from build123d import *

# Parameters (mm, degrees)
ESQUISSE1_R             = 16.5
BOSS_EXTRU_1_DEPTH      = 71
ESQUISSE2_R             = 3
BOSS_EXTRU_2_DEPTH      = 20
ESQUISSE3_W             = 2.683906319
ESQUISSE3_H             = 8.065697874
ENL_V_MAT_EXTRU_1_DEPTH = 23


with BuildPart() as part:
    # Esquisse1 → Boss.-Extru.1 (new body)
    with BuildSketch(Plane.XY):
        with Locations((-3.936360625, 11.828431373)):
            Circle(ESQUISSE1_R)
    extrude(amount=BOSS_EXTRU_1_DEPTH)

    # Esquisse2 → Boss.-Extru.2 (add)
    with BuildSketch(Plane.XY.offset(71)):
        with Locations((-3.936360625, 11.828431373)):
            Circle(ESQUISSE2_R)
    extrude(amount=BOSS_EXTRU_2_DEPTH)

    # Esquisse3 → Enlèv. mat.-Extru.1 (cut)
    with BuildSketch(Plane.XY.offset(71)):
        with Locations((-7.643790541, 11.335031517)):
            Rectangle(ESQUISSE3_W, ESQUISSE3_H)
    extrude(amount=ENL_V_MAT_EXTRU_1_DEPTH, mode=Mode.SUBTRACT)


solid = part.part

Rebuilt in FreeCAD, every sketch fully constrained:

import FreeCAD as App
import Part
import Sketcher

doc = App.newDocument("Part")
body = doc.addObject("PartDesign::Body", "Body")

# Sketch on XY plane
sketch1 = body.newObject("Sketcher::SketchObject", "Sketch")
sketch1.AttachmentSupport = (doc.getObject("XY_Plane"), [""])
sketch1.MapMode = "FlatFace"
sketch1.addGeometry(Part.Circle(App.Vector(-4, 12, 0), App.Vector(0, 0, 1), 16), False)
sketch1.addConstraint([
    Sketcher.Constraint("Diameter", 0, 33.0),
    Sketcher.Constraint("DistanceX", 0, 3, -1, 1, 3.936361),
    Sketcher.Constraint("DistanceY", -1, 1, 0, 3, 11.828431),
])
pad1 = body.newObject("PartDesign::Pad", "Pad")
pad1.Profile = sketch1
pad1.Length = 71

# Sketch on XY plane
sketch2 = body.newObject("Sketcher::SketchObject", "Sketch001")
sketch2.AttachmentSupport = (doc.getObject("XY_Plane"), [""])
sketch2.MapMode = "FlatFace"
sketch2.AttachmentOffset = App.Placement(App.Vector(0, 0, 71), App.Rotation())
sketch2.addGeometry(Part.Circle(App.Vector(-3.9, 11.8, 0), App.Vector(0, 0, 1), 3), False)
sketch2.addConstraint([
    Sketcher.Constraint("Diameter", 0, 6.0),
    Sketcher.Constraint("DistanceX", 0, 3, -1, 1, 3.936361),
    Sketcher.Constraint("DistanceY", -1, 1, 0, 3, 11.828431),
])
pad2 = body.newObject("PartDesign::Pad", "Pad001")
pad2.Profile = sketch2
pad2.Length = 20

# Sketch on XY plane
sketch3 = body.newObject("Sketcher::SketchObject", "Sketch002")
sketch3.AttachmentSupport = (doc.getObject("XY_Plane"), [""])
sketch3.MapMode = "FlatFace"
sketch3.AttachmentOffset = App.Placement(App.Vector(0, 0, 71), App.Rotation())
sketch3.addGeometry([
    Part.LineSegment(App.Vector(-9, 15.4, 0), App.Vector(-9, 7.3, 0)),
    Part.LineSegment(App.Vector(-9, 7.3, 0), App.Vector(-6.3, 7.3, 0)),
    Part.LineSegment(App.Vector(-6.3, 7.3, 0), App.Vector(-6.3, 15.4, 0)),
    Part.LineSegment(App.Vector(-6.3, 15.4, 0), App.Vector(-9, 15.4, 0)),
], False)
sketch3.addConstraint([
    Sketcher.Constraint("Coincident", 0, 2, 1, 1),
    Sketcher.Constraint("Coincident", 1, 2, 2, 1),
    Sketcher.Constraint("Coincident", 2, 2, 3, 1),
    Sketcher.Constraint("Coincident", 3, 2, 0, 1),
    Sketcher.Constraint("Vertical", 0),
    Sketcher.Constraint("Horizontal", 1),
    Sketcher.Constraint("Vertical", 2),
    Sketcher.Constraint("Horizontal", 3),
    Sketcher.Constraint("DistanceX", 1, 1, 1, 2, 2.683906),
    Sketcher.Constraint("DistanceY", 0, 2, 0, 1, 8.065698),
    Sketcher.Constraint("DistanceY", -1, 1, 2, 2, 15.36788),
    Sketcher.Constraint("DistanceX", 0, 2, -1, 1, 8.985744),
])
pocket1 = body.newObject("PartDesign::Pocket", "Pocket")
pocket1.Profile = sketch3
pocket1.Length = 23
pocket1.Reversed = True

doc.recompute()
